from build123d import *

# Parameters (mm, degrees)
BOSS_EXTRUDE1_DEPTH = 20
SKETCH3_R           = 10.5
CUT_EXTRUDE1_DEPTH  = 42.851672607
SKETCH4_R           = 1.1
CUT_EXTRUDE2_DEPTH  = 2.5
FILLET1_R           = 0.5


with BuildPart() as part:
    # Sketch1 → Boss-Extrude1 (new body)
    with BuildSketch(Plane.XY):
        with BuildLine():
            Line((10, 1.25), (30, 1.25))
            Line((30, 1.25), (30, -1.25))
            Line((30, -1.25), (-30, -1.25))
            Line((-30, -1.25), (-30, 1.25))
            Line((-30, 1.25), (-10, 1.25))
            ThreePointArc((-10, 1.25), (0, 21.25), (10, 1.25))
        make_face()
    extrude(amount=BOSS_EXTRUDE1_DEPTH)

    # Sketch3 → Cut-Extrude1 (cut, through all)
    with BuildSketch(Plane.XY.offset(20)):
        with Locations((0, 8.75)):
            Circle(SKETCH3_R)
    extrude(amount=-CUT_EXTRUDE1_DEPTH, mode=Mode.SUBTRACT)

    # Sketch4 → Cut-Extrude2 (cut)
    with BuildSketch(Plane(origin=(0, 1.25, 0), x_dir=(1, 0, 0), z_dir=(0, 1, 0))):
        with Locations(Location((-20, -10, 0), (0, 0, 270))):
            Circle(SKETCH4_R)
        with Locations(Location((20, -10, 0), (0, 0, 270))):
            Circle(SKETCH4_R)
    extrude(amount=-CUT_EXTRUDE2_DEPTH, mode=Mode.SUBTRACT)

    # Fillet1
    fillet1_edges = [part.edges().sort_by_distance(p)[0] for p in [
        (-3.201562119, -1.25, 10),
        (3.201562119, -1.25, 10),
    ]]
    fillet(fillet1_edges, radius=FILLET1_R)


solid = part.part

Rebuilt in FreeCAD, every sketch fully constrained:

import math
import FreeCAD as App
import Part
import Sketcher
from FreeCAD import Vector
Q = App.Units.Quantity


def edges_at(feature, points):
    """Names of the edges that pass closest to the given points."""
    edges = feature.Shape.Edges
    near = lambda p: min(range(len(edges)), key=lambda i: edges[i].distToShape(Part.Vertex(*p))[0])
    return sorted({f"Edge{near(p) + 1}" for p in points})

doc = App.newDocument("Part")
params = doc.addObject("Spreadsheet::Sheet", "Params")
for row, (alias, value) in enumerate([
    ("sketch1_radius", "12.5 mm"),
    ("sketch1_width", "20 mm"),
    ("sketch1_width2", "60 mm"),
    ("sketch1_height", "2.5 mm"),
    ("pad1_length", "20 mm"),
    ("sketch2_diameter", "21 mm"),
    ("sketch3_diameter", "2.2 mm"),
    ("pocket2_length", "2.5 mm"),
    ("fillet_radius", "0.5 mm"),
], start=1):
    params.set(f"A{row}", alias)
    params.set(f"B{row}", "=" + value)
    params.setAlias(f"B{row}", alias)

body = doc.addObject("PartDesign::Body", "Body")

# Sketch on XY plane
sketch1 = doc.addObject("Sketcher::SketchObject", "Sketch")
body.addObject(sketch1)
sketch1.AttachmentSupport = (doc.XY_Plane, [""])
sketch1.MapMode = "FlatFace"
sketch1.addGeometry([
    Part.LineSegment(Vector(30, 1.2, 0), Vector(10, 1.2, 0)),  # 0
    Part.ArcOfCircle(Part.Circle(Vector(0, 8.8, 0), Vector(0, 0, 1), 12.5), math.radians(-37), math.radians(217)),  # 1
    Part.LineSegment(Vector(-10, 1.2, 0), Vector(-30, 1.2, 0)),  # 2
    Part.LineSegment(Vector(-30, 1.2, 0), Vector(-30, -1.2, 0)),  # 3
    Part.LineSegment(Vector(-30, -1.2, 0), Vector(30, -1.2, 0)),  # 4
    Part.LineSegment(Vector(30, -1.2, 0), Vector(30, 1.2, 0)),  # 5
], False)
sketch1.addConstraint([
    Sketcher.Constraint("Coincident", 0, 2, 1, 1),
    Sketcher.Constraint("Coincident", 1, 2, 2, 1),
    Sketcher.Constraint("Coincident", 2, 2, 3, 1),
    Sketcher.Constraint("Coincident", 3, 2, 4, 1),
    Sketcher.Constraint("Coincident", 4, 2, 5, 1),
    Sketcher.Constraint("Coincident", 5, 2, 0, 1),
    Sketcher.Constraint("Horizontal", 0),
    Sketcher.Constraint("Horizontal", 2),
    Sketcher.Constraint("Vertical", 3),
    Sketcher.Constraint("Horizontal", 4),
    Sketcher.Constraint("Vertical", 5),
    Sketcher.Constraint("Symmetric", 2, 2, 4, 2, -1, 1),
    Sketcher.Constraint("Symmetric", 0, 2, 1, 2, -2),
    Sketcher.Constraint("Radius", 1, Q("12.5 mm")),
    Sketcher.Constraint("DistanceX", 0, 2, 0, 1, Q("20 mm")),
    Sketcher.Constraint("DistanceX", 4, 1, 4, 2, Q("60 mm")),
    Sketcher.Constraint("DistanceY", 3, 2, 3, 1, Q("2.5 mm")),
])
sketch1.setExpression("Constraints[13]", "Params.sketch1_radius")
sketch1.setExpression("Constraints[14]", "Params.sketch1_width")
sketch1.setExpression("Constraints[15]", "Params.sketch1_width2")
sketch1.setExpression("Constraints[16]", "Params.sketch1_height")
pad1 = doc.addObject("PartDesign::Pad", "Pad")
body.addObject(pad1)
pad1.Profile = sketch1
pad1.setExpression("Length", "Params.pad1_length")

# Sketch on XY plane
sketch2 = doc.addObject("Sketcher::SketchObject", "Sketch001")
body.addObject(sketch2)
sketch2.AttachmentSupport = (doc.XY_Plane, [""])
sketch2.MapMode = "FlatFace"
sketch2.AttachmentOffset = App.Placement(Vector(0, 0, 20), App.Rotation())
sketch2.addGeometry(Part.Circle(Vector(0, 9, 0), Vector(0, 0, 1), 10), False)
sketch2.addConstraint([
    Sketcher.Constraint("PointOnObject", 0, 3, -2),
    Sketcher.Constraint("Diameter", 0, Q("21 mm")),
    Sketcher.Constraint("DistanceY", -1, 1, 0, 3, Q("8.75 mm")),
])
sketch2.setExpression("Constraints[1]", "Params.sketch2_diameter")
pocket1 = doc.addObject("PartDesign::Pocket", "Pocket")
body.addObject(pocket1)
pocket1.Profile = sketch2
pocket1.Type = "ThroughAll"

# Sketch on XZ plane
sketch3 = doc.addObject("Sketcher::SketchObject", "Sketch002")
body.addObject(sketch3)
sketch3.AttachmentSupport = (doc.XZ_Plane, [""])
sketch3.MapMode = "FlatFace"
sketch3.AttachmentOffset = App.Placement(Vector(0, 0, -1.25), App.Rotation())
sketch3.addGeometry([
    Part.Circle(Vector(-20, 10, 0), Vector(0, 0, 1), 1.1),
    Part.Circle(Vector(20, 10, 0), Vector(0, 0, 1), 1.1),
], False)
sketch3.addConstraint([
    Sketcher.Constraint("Equal", 0, 1),
    Sketcher.Constraint("Symmetric", 0, 3, 1, 3, -2),
    Sketcher.Constraint("Diameter", 0, Q("2.2 mm")),
    Sketcher.Constraint("DistanceX", 0, 3, -1, 1, Q("20 mm")),
    Sketcher.Constraint("DistanceY", -1, 1, 0, 3, Q("10 mm")),
])
sketch3.setExpression("Constraints[2]", "Params.sketch3_diameter")
pocket2 = doc.addObject("PartDesign::Pocket", "Pocket001")
body.addObject(pocket2)
pocket2.Profile = sketch3
pocket2.setExpression("Length", "Params.pocket2_length")
pocket2.Reversed = True
doc.recompute()

fillet = doc.addObject("PartDesign::Fillet", "Fillet")
body.addObject(fillet)
fillet.Base = (pocket2, edges_at(pocket2, [(-3.202, -1.25, 10), (3.202, -1.25, 10)]))
fillet.setExpression("Radius", "Params.fillet_radius")

doc.recompute()
